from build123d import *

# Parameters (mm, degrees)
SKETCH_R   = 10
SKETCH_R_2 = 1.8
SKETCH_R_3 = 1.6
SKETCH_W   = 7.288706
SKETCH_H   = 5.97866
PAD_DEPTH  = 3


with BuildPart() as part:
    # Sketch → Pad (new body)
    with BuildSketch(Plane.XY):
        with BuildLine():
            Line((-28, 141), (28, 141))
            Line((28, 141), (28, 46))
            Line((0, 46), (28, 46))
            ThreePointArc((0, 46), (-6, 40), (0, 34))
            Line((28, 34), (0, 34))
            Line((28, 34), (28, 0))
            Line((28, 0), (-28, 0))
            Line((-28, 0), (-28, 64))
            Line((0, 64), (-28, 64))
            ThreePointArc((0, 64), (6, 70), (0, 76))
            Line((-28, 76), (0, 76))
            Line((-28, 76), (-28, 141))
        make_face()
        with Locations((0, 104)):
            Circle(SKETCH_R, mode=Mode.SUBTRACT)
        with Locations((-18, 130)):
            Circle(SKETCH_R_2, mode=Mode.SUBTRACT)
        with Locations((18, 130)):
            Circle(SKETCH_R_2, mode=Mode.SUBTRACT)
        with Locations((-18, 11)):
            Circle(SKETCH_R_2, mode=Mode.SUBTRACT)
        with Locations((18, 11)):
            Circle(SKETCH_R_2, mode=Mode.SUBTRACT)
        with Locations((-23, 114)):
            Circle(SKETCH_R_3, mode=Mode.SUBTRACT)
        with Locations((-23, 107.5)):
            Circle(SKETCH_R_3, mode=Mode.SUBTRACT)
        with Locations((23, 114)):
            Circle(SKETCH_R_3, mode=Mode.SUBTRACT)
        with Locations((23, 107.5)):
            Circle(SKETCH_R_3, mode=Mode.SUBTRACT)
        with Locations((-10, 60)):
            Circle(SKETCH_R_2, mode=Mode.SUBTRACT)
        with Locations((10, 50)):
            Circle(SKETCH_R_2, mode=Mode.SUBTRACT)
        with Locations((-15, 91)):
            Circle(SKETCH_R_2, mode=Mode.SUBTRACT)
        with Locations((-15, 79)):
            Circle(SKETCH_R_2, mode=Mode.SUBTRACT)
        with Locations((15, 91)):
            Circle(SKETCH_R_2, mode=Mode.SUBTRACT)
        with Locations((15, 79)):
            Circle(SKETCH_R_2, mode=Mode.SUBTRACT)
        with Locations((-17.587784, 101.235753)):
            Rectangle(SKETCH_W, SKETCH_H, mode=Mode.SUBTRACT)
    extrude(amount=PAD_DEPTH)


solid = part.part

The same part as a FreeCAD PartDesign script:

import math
import FreeCAD as App
import Part
import Sketcher

V = App.Vector
Q = App.Units.Quantity

doc = App.newDocument("Part")
params = doc.addObject("Spreadsheet::Sheet", "Params")
for row, (alias, value) in enumerate([
    ("sketch1_diameter", "20 mm"),
    ("sketch1_radius", "6 mm"),
    ("sketch1_diameter2", "3.6 mm"),
    ("sketch1_diameter3", "3.2 mm"),
    ("sketch1_width", "56 mm"),
    ("pad1_length", "3 mm"),
], start=1):
    params.set(f"A{row}", alias)
    params.set(f"B{row}", "=" + value)
    params.setAlias(f"B{row}", alias)

body = doc.addObject("PartDesign::Body", "Body")

# Sketch on XY plane
sketch1 = body.newObject("Sketcher::SketchObject", "Sketch")
sketch1.AttachmentSupport = (doc.getObject("XY_Plane"), [""])
sketch1.MapMode = "FlatFace"
sketch1.addGeometry(Part.LineSegment(V(28, 141, 0), V(-28, 141, 0)), False)
sketch1.addGeometry(Part.LineSegment(V(-28, 141, 0), V(-28, 76, 0)), False)
sketch1.addGeometry(Part.LineSegment(V(-28, 76, 0), V(0, 76, 0)), False)
sketch1.addGeometry(Part.ArcOfCircle(Part.Circle(V(0, 70, 0), V(0, 0, 1), 6), math.radians(-90), math.radians(90)), False)
sketch1.addGeometry(Part.LineSegment(V(0, 64, 0), V(-28, 64, 0)), False)
sketch1.addGeometry(Part.LineSegment(V(-28, 64, 0), V(-28, 0, 0)), False)
sketch1.addGeometry(Part.LineSegment(V(-28, 0, 0), V(28, 0, 0)), False)
sketch1.addGeometry(Part.LineSegment(V(28, 0, 0), V(28, 34, 0)), False)
sketch1.addGeometry(Part.LineSegment(V(28, 34, 0), V(0, 34, 0)), False)
sketch1.addGeometry(Part.ArcOfCircle(Part.Circle(V(0, 40, 0), V(0, 0, 1), 6), math.radians(90), math.radians(270)), False)
sketch1.addGeometry(Part.LineSegment(V(0, 46, 0), V(28, 46, 0)), False)
sketch1.addGeometry(Part.LineSegment(V(28, 46, 0), V(28, 141, 0)), False)
sketch1.addGeometry(Part.Circle(V(18, 11, 0), V(0, 0, 1), 1.8), False)
sketch1.addGeometry(Part.Circle(V(10, 50, 0), V(0, 0, 1), 1.8), False)
sketch1.addGeometry(Part.Circle(V(-18, 11, 0), V(0, 0, 1), 1.8), False)
sketch1.addGeometry(Part.Circle(V(-10, 60, 0), V(0, 0, 1), 1.8), False)
sketch1.addGeometry(Part.Circle(V(15, 79, 0), V(0, 0, 1), 1.8), False)
sketch1.addGeometry(Part.Circle(V(15, 91, 0), V(0, 0, 1), 1.8), False)
sketch1.addGeometry(Part.Circle(V(23, 107.5, 0), V(0, 0, 1), 1.6), False)
sketch1.addGeometry(Part.Circle(V(23, 114, 0), V(0, 0, 1), 1.6), False)
sketch1.addGeometry(Part.Circle(V(18, 130, 0), V(0, 0, 1), 1.8), False)
sketch1.addGeometry(Part.Circle(V(-15, 79, 0), V(0, 0, 1), 1.8), False)
sketch1.addGeometry(Part.Circle(V(-15, 91, 0), V(0, 0, 1), 1.8), False)
sketch1.addGeometry(Part.Circle(V(0, 104, 0), V(0, 0, 1), 10), False)
sketch1.addGeometry(Part.LineSegment(V(-21.2, 98.2, 0), V(-21.2, 104.2, 0)), False)
sketch1.addGeometry(Part.LineSegment(V(-21.2, 104.2, 0), V(-13.9, 104.2, 0)), False)
sketch1.addGeometry(Part.LineSegment(V(-13.9, 104.2, 0), V(-13.9, 98.2, 0)), False)
sketch1.addGeometry(Part.LineSegment(V(-13.9, 98.2, 0), V(-21.2, 98.2, 0)), False)
sketch1.addGeometry(Part.Circle(V(-23, 107.5, 0), V(0, 0, 1), 1.6), False)
sketch1.addGeometry(Part.Circle(V(-23, 114, 0), V(0, 0, 1), 1.6), False)
sketch1.addGeometry(Part.Circle(V(-18, 130, 0), V(0, 0, 1), 1.8), False)
sketch1.addConstraint(Sketcher.Constraint("Coincident", 0, 2, 1, 1))
sketch1.addConstraint(Sketcher.Constraint("Coincident", 1, 2, 2, 1))
sketch1.addConstraint(Sketcher.Constraint("Tangent", 2, 2, 3, 2))
sketch1.addConstraint(Sketcher.Constraint("Tangent", 3, 1, 4, 1))
sketch1.addConstraint(Sketcher.Constraint("Coincident", 4, 2, 5, 1))
sketch1.addConstraint(Sketcher.Constraint("Coincident", 5, 2, 6, 1))
sketch1.addConstraint(Sketcher.Constraint("Coincident", 6, 2, 7, 1))
sketch1.addConstraint(Sketcher.Constraint("Coincident", 7, 2, 8, 1))
sketch1.addConstraint(Sketcher.Constraint("Tangent", 8, 2, 9, 2))
sketch1.addConstraint(Sketcher.Constraint("Tangent", 9, 1, 10, 1))
sketch1.addConstraint(Sketcher.Constraint("Coincident", 10, 2, 11, 1))
sketch1.addConstraint(Sketcher.Constraint("Coincident", 11, 2, 0, 1))
sketch1.addConstraint(Sketcher.Constraint("Coincident", 24, 2, 25, 1))
sketch1.addConstraint(Sketcher.Constraint("Coincident", 25, 2, 26, 1))
sketch1.addConstraint(Sketcher.Constraint("Coincident", 26, 2, 27, 1))
sketch1.addConstraint(Sketcher.Constraint("Coincident", 27, 2, 24, 1))
sketch1.addConstraint(Sketcher.Constraint("Horizontal", 0))
sketch1.addConstraint(Sketcher.Constraint("Vertical", 1))
sketch1.addConstraint(Sketcher.Constraint("Horizontal", 2))
sketch1.addConstraint(Sketcher.Constraint("Horizontal", 4))
sketch1.addConstraint(Sketcher.Constraint("Vertical", 5))
sketch1.addConstraint(Sketcher.Constraint("Horizontal", 6))
sketch1.addConstraint(Sketcher.Constraint("Vertical", 7))
sketch1.addConstraint(Sketcher.Constraint("Horizontal", 8))
sketch1.addConstraint(Sketcher.Constraint("Horizontal", 10))
sketch1.addConstraint(Sketcher.Constraint("Vertical", 11))
sketch1.addConstraint(Sketcher.Constraint("Vertical", 24))
sketch1.addConstraint(Sketcher.Constraint("Horizontal", 25))
sketch1.addConstraint(Sketcher.Constraint("Vertical", 26))
sketch1.addConstraint(Sketcher.Constraint("Horizontal", 27))
sketch1.addConstraint(Sketcher.Constraint("Equal", 3, 9))
sketch1.addConstraint(Sketcher.Constraint("Equal", 12, 13))
sketch1.addConstraint(Sketcher.Constraint("Equal", 13, 14))
sketch1.addConstraint(Sketcher.Constraint("Equal", 14, 15))
sketch1.addConstraint(Sketcher.Constraint("Equal", 15, 16))
sketch1.addConstraint(Sketcher.Constraint("Equal", 16, 17))
sketch1.addConstraint(Sketcher.Constraint("Equal", 18, 19))
sketch1.addConstraint(Sketcher.Constraint("Equal", 17, 20))
sketch1.addConstraint(Sketcher.Constraint("Equal", 20, 21))
sketch1.addConstraint(Sketcher.Constraint("Equal", 21, 22))
sketch1.addConstraint(Sketcher.Constraint("Equal", 19, 28))
sketch1.addConstraint(Sketcher.Constraint("Equal", 28, 29))
sketch1.addConstraint(Sketcher.Constraint("Equal", 22, 30))
sketch1.addConstraint(Sketcher.Constraint("Symmetric", 5, 2, 6, 2, -1, 1))
sketch1.addConstraint(Sketcher.Constraint("Symmetric", 12, 3, 14, 3, -2))
sketch1.addConstraint(Sketcher.Constraint("Symmetric", 16, 3, 21, 3, -2))
sketch1.addConstraint(Sketcher.Constraint("Symmetric", 17, 3, 22, 3, -2))
sketch1.addConstraint(Sketcher.Constraint("Symmetric", 18, 3, 28, 3, -2))
sketch1.addConstraint(Sketcher.Constraint("Symmetric", 19, 3, 29, 3, -2))
sketch1.addConstraint(Sketcher.Constraint("Symmetric", 20, 3, 30, 3, -2))
sketch1.addConstraint(Sketcher.Constraint("PointOnObject", 3, 3, -2))
sketch1.addConstraint(Sketcher.Constraint("PointOnObject", 9, 3, -2))
sketch1.addConstraint(Sketcher.Constraint("PointOnObject", 23, 3, -2))
sketch1.addConstraint(Sketcher.Constraint("Vertical", 16, 3, 17, 3))
sketch1.addConstraint(Sketcher.Constraint("Vertical", 18, 3, 19, 3))
sketch1.addConstraint(Sketcher.Constraint("Vertical", 12, 3, 20, 3))
sketch1.addConstraint(Sketcher.Constraint("Vertical", 1, 2, 4, 2))
sketch1.addConstraint(Sketcher.Constraint("Vertical", 7, 2, 10, 2))
sketch1.addConstraint(Sketcher.Constraint("Diameter", 23, Q("20 mm")))
sketch1.addConstraint(Sketcher.Constraint("Radius", 3, Q("6 mm")))
sketch1.addConstraint(Sketcher.Constraint("Diameter", 12, Q("3.6 mm")))
sketch1.addConstraint(Sketcher.Constraint("Diameter", 18, Q("3.2 mm")))
sketch1.addConstraint(Sketcher.Constraint("DistanceX", 0, 2, 0, 1, Q("56 mm")))
sketch1.addConstraint(Sketcher.Constraint("DistanceY", 1, 2, 1, 1, Q("65 mm")))
sketch1.addConstraint(Sketcher.Constraint("DistanceY", 5, 2, 5, 1, Q("64 mm")))
sketch1.addConstraint(Sketcher.Constraint("DistanceY", 7, 1, 7, 2, Q("34 mm")))
sketch1.addConstraint(Sketcher.Constraint("DistanceX", -1, 1, 12, 3, Q("18 mm")))
sketch1.addConstraint(Sketcher.Constraint("DistanceY", -1, 1, 12, 3, Q("11 mm")))
sketch1.addConstraint(Sketcher.Constraint("DistanceX", -1, 1, 13, 3, Q("10 mm")))
sketch1.addConstraint(Sketcher.Constraint("DistanceY", -1, 1, 13, 3, Q("50 mm")))
sketch1.addConstraint(Sketcher.Constraint("DistanceX", 15, 3, -1, 1, Q("10 mm")))
sketch1.addConstraint(Sketcher.Constraint("DistanceY", -1, 1, 15, 3, Q("60 mm")))
sketch1.addConstraint(Sketcher.Constraint("DistanceX", -1, 1, 16, 3, Q("15 mm")))
sketch1.addConstraint(Sketcher.Constraint("DistanceY", -1, 1, 16, 3, Q("79 mm")))
sketch1.addConstraint(Sketcher.Constraint("DistanceY", -1, 1, 17, 3, Q("91 mm")))
sketch1.addConstraint(Sketcher.Constraint("DistanceX", -1, 1, 18, 3, Q("23 mm")))
sketch1.addConstraint(Sketcher.Constraint("DistanceY", -1, 1, 19, 3, Q("114 mm")))
sketch1.addConstraint(Sketcher.Constraint("DistanceY", -1, 1, 20, 3, Q("130 mm")))
sketch1.addConstraint(Sketcher.Constraint("DistanceY", -1, 1, 23, 3, Q("104 mm")))
sketch1.addConstraint(Sketcher.Constraint("DistanceY", -1, 1, 18, 3, Q("107.5 mm")))
sketch1.addConstraint(Sketcher.Constraint("DistanceY", 24, 1, 24, 2, Q("5.97866 mm")))
sketch1.addConstraint(Sketcher.Constraint("DistanceX", 25, 1, 25, 2, Q("7.288706 mm")))
sketch1.addConstraint(Sketcher.Constraint("DistanceX", 25, 2, -1, 1, Q("13.943431 mm")))
sketch1.addConstraint(Sketcher.Constraint("DistanceY", -1, 1, 24, 2, Q("104.225083 mm")))
sketch1.setExpression("Constraints[58]", "Params.sketch1_diameter")
sketch1.setExpression("Constraints[59]", "Params.sketch1_radius")
sketch1.setExpression("Constraints[60]", "Params.sketch1_diameter2")
sketch1.setExpression("Constraints[61]", "Params.sketch1_diameter3")
sketch1.setExpression("Constraints[62]", "Params.sketch1_width")
pad1 = body.newObject("PartDesign::Pad", "Pad")
pad1.Profile = sketch1
pad1.setExpression("Length", "Params.pad1_length")

doc.recompute()
